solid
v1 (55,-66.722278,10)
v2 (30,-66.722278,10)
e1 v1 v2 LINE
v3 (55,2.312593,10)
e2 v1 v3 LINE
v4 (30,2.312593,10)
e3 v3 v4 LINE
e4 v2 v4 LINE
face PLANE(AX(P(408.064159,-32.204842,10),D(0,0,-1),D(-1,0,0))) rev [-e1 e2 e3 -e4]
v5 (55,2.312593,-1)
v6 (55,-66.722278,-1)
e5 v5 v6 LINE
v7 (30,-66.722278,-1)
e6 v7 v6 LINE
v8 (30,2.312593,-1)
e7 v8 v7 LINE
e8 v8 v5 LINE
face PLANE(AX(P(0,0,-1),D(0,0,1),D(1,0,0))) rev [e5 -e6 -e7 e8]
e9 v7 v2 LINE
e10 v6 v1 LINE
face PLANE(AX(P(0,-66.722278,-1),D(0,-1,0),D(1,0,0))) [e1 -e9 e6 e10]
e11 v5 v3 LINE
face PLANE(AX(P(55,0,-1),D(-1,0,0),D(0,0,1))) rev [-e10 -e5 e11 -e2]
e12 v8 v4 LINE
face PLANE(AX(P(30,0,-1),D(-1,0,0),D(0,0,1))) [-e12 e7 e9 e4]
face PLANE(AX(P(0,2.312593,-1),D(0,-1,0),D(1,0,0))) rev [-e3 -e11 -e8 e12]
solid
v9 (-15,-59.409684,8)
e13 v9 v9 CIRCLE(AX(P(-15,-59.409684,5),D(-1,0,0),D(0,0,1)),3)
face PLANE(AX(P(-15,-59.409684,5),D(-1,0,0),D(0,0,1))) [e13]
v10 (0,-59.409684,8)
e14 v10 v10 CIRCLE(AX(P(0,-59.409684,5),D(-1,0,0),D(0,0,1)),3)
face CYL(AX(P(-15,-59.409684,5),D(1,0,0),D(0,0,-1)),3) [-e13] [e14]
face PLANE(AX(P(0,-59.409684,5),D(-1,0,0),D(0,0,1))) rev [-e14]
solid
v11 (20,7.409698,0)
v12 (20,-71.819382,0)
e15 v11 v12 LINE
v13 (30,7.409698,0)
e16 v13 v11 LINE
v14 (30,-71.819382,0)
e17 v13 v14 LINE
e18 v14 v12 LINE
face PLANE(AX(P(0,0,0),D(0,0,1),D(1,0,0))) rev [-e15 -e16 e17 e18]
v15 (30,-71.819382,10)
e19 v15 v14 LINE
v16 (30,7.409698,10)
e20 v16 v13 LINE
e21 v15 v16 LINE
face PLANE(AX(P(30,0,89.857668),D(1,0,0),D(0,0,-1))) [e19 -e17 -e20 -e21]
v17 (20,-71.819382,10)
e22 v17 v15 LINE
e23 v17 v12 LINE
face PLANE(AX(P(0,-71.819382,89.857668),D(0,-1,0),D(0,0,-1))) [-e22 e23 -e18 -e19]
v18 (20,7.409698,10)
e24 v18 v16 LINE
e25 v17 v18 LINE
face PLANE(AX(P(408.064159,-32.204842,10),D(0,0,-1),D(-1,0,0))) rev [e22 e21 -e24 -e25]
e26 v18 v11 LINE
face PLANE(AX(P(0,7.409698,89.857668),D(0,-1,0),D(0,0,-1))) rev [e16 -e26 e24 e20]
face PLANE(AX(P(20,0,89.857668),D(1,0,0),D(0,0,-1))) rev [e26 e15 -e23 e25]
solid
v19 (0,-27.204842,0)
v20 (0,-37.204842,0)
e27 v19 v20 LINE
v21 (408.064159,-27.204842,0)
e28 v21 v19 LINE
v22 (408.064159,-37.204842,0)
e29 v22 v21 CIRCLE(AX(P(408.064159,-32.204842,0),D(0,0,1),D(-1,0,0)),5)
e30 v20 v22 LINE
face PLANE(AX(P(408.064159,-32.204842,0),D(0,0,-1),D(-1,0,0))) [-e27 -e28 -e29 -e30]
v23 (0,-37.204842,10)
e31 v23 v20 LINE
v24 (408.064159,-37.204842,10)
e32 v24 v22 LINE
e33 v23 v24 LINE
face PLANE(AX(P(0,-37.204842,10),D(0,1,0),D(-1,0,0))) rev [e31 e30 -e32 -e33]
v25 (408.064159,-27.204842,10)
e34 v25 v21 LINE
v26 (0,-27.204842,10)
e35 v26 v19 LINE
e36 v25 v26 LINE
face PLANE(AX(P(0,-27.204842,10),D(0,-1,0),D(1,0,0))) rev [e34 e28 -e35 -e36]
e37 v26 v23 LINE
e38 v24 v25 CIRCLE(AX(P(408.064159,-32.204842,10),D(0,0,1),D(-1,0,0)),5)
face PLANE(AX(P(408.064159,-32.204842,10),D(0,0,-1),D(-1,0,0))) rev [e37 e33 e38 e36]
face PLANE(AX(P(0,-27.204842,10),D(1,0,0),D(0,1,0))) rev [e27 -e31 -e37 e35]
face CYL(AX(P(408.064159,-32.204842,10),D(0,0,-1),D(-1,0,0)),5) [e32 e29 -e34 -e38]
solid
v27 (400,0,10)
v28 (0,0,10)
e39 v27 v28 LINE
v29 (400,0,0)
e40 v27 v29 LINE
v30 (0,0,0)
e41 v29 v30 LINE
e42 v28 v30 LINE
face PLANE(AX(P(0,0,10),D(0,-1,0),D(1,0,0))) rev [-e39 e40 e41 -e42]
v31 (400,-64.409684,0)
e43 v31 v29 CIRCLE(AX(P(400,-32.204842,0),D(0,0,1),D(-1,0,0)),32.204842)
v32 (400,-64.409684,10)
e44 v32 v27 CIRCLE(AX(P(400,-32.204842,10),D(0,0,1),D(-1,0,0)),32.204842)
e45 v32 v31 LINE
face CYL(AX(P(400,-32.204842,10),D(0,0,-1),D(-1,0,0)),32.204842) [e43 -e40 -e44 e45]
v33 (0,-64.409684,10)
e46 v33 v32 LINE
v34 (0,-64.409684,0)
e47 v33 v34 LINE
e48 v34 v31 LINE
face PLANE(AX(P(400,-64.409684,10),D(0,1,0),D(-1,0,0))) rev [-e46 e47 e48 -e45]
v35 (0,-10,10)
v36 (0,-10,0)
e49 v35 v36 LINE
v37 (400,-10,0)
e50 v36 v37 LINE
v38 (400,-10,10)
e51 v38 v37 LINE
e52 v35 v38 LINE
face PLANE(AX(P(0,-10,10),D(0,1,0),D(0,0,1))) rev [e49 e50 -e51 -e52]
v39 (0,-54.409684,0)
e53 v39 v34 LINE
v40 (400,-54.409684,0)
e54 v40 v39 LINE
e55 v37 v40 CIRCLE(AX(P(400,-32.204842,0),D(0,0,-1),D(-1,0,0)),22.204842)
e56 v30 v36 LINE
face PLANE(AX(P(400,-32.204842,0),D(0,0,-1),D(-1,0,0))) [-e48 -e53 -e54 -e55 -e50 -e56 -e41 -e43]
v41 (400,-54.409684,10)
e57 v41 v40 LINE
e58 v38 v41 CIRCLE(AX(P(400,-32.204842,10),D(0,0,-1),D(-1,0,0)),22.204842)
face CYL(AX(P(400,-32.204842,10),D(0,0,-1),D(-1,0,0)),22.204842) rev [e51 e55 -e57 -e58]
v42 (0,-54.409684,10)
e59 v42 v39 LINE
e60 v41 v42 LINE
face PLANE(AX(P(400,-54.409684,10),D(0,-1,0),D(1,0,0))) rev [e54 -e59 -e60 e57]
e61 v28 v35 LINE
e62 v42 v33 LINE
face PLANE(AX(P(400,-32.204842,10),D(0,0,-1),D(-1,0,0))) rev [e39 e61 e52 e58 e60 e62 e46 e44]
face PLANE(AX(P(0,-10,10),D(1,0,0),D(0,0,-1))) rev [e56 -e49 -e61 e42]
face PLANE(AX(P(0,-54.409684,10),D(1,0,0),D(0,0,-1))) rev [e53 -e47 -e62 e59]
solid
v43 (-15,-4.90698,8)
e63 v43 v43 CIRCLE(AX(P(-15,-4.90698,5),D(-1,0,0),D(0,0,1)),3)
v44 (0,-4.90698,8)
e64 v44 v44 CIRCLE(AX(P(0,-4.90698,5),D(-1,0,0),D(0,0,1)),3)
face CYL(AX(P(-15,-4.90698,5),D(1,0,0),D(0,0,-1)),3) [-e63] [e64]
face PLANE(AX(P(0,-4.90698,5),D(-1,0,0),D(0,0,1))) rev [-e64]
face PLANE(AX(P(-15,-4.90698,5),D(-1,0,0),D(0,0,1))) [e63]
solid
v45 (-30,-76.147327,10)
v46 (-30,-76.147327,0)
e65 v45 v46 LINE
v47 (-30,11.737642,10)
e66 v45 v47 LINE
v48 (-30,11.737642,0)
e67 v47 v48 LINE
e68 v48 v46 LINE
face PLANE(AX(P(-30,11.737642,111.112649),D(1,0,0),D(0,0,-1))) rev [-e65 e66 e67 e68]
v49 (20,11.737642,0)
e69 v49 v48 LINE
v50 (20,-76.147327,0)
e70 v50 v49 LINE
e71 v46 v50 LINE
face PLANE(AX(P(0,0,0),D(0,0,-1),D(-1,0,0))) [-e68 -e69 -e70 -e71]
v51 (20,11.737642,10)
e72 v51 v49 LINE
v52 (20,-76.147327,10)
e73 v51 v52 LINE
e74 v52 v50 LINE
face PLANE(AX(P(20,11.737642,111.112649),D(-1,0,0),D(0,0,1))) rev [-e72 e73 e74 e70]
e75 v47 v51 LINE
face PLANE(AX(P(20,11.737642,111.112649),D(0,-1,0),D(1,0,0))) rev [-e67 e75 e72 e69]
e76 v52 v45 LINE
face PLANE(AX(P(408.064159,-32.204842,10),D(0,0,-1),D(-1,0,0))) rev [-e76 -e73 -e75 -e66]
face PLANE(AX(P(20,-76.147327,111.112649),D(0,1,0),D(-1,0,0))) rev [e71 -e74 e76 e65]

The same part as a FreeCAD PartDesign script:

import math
import FreeCAD as App
import Part
import Sketcher

V = App.Vector
Q = App.Units.Quantity


def add_polygon(sketch, points):
    """Adds a closed chain of lines whose ends are joined by coincident constraints."""
    first, n = sketch.GeometryCount, len(points)
    for a, b in zip(points, points[1:] + points[:1]):
        sketch.addGeometry(Part.LineSegment(App.Vector(*a, 0), App.Vector(*b, 0)), False)
    for i in range(n):
        sketch.addConstraint(Sketcher.Constraint("Coincident", first + i, 2, first + (i + 1) % n, 1))

doc = App.newDocument("Part")
body = doc.addObject("PartDesign::Body", "Body")

sketch1 = body.newObject("Sketcher::SketchObject", "Sketch")
sketch1.AttachmentSupport = (doc.getObject("XY_Plane"), [""])
sketch1.MapMode = "FlatFace"
sketch1.addGeometry(Part.LineSegment(V(400, 0, 0), V(0, 0, 0)), False)
sketch1.addGeometry(Part.LineSegment(V(0, 0, 0), V(0, -10, 0)), False)
sketch1.addGeometry(Part.LineSegment(V(0, -10, 0), V(400, -10, 0)), False)
sketch1.addGeometry(Part.ArcOfCircle(Part.Circle(V(400, -32, 0), V(0, 0, 1), 22), math.radians(-90), math.radians(90)), False)
sketch1.addGeometry(Part.LineSegment(V(400, -54, 0), V(0, -54, 0)), False)
sketch1.addGeometry(Part.LineSegment(V(0, -54, 0), V(0, -64, 0)), False)
sketch1.addGeometry(Part.LineSegment(V(0, -64, 0), V(400, -64, 0)), False)
sketch1.addGeometry(Part.ArcOfCircle(Part.Circle(V(400, -32, 0), V(0, 0, 1), 32), math.radians(-90), math.radians(90)), False)
sketch1.addConstraint(Sketcher.Constraint("Coincident", 0, 2, 1, 1))
sketch1.addConstraint(Sketcher.Constraint("Coincident", 1, 2, 2, 1))
sketch1.addConstraint(Sketcher.Constraint("Tangent", 2, 2, 3, 2))
sketch1.addConstraint(Sketcher.Constraint("Tangent", 3, 1, 4, 1))
sketch1.addConstraint(Sketcher.Constraint("Coincident", 4, 2, 5, 1))
sketch1.addConstraint(Sketcher.Constraint("Coincident", 5, 2, 6, 1))
sketch1.addConstraint(Sketcher.Constraint("Tangent", 6, 2, 7, 1))
sketch1.addConstraint(Sketcher.Constraint("Tangent", 7, 2, 0, 1))
sketch1.addConstraint(Sketcher.Constraint("Horizontal", 0))
sketch1.addConstraint(Sketcher.Constraint("Vertical", 1))
sketch1.addConstraint(Sketcher.Constraint("Horizontal", 2))
sketch1.addConstraint(Sketcher.Constraint("Horizontal", 4))
sketch1.addConstraint(Sketcher.Constraint("Vertical", 5))
sketch1.addConstraint(Sketcher.Constraint("Horizontal", 6))
sketch1.addConstraint(Sketcher.Constraint("Coincident", 0, 2, -1, 1))
sketch1.addConstraint(Sketcher.Constraint("Coincident", 7, 3, 3, 3))
sketch1.addConstraint(Sketcher.Constraint("PointOnObject", 4, 2, -2))
sketch1.addConstraint(Sketcher.Constraint("DistanceX", 0, 2, 0, 1, Q("400 mm")))
sketch1.addConstraint(Sketcher.Constraint("DistanceY", 1, 2, 1, 1, Q("10 mm")))
sketch1.addConstraint(Sketcher.Constraint("Radius", 3, Q("22.204842 mm")))
pad1 = body.newObject("PartDesign::Pad", "Pad")
pad1.Profile = sketch1
pad1.Length = 10
body2 = doc.addObject("PartDesign::Body", "Body001")

sketch2 = body2.newObject("Sketcher::SketchObject", "Sketch001")
sketch2.AttachmentSupport = (doc.getObject("XY_Plane001"), [""])
sketch2.MapMode = "FlatFace"
sketch2.addGeometry(Part.LineSegment(V(408, -27, 0), V(0, -27, 0)), False)
sketch2.addGeometry(Part.LineSegment(V(0, -27, 0), V(0, -37, 0)), False)
sketch2.addGeometry(Part.LineSegment(V(0, -37, 0), V(408, -37, 0)), False)
sketch2.addGeometry(Part.ArcOfCircle(Part.Circle(V(408, -32, 0), V(0, 0, 1), 5), math.radians(-90), math.radians(90)), False)
sketch2.addConstraint(Sketcher.Constraint("Coincident", 0, 2, 1, 1))
sketch2.addConstraint(Sketcher.Constraint("Coincident", 1, 2, 2, 1))
sketch2.addConstraint(Sketcher.Constraint("Tangent", 2, 2, 3, 1))
sketch2.addConstraint(Sketcher.Constraint("Tangent", 3, 2, 0, 1))
sketch2.addConstraint(Sketcher.Constraint("Horizontal", 0))
sketch2.addConstraint(Sketcher.Constraint("Vertical", 1))
sketch2.addConstraint(Sketcher.Constraint("Horizontal", 2))
sketch2.addConstraint(Sketcher.Constraint("PointOnObject", 0, 2, -2))
sketch2.addConstraint(Sketcher.Constraint("Radius", 3, Q("5 mm")))
sketch2.addConstraint(Sketcher.Constraint("DistanceX", 0, 2, 0, 1, Q("408.064159 mm")))
sketch2.addConstraint(Sketcher.Constraint("DistanceY", 3, 3, -1, 1, Q("32.204842 mm")))
pad2 = body2.newObject("PartDesign::Pad", "Pad001")
pad2.Profile = sketch2
pad2.Length = 10
body3 = doc.addObject("PartDesign::Body", "Body002")

sketch3 = body3.newObject("Sketcher::SketchObject", "Sketch002")
sketch3.AttachmentSupport = (doc.getObject("YZ_Plane002"), [""])
sketch3.MapMode = "FlatFace"
sketch3.addGeometry(Part.Circle(V(-4.9, 5, 0), V(0, 0, 1), 3), False)
sketch3.addConstraint(Sketcher.Constraint("Diameter", 0, Q("6 mm")))
sketch3.addConstraint(Sketcher.Constraint("DistanceY", -1, 1, 0, 3, Q("5 mm")))
sketch3.addConstraint(Sketcher.Constraint("DistanceX", 0, 3, -1, 1, Q("4.90698 mm")))
pad3 = body3.newObject("PartDesign::Pad", "Pad002")
pad3.Profile = sketch3
pad3.Length = 15
pad3.Reversed = True
body4 = doc.addObject("PartDesign::Body", "Body003")

sketch4 = body4.newObject("Sketcher::SketchObject", "Sketch003")
sketch4.AttachmentSupport = (doc.getObject("YZ_Plane003"), [""])
sketch4.MapMode = "FlatFace"
sketch4.addGeometry(Part.Circle(V(-59.4, 5, 0), V(0, 0, 1), 3), False)
sketch4.addConstraint(Sketcher.Constraint("Diameter", 0, Q("6 mm")))
sketch4.addConstraint(Sketcher.Constraint("DistanceY", -1, 1, 0, 3, Q("5 mm")))
sketch4.addConstraint(Sketcher.Constraint("DistanceX", 0, 3, -1, 1, Q("59.409684 mm")))
pad4 = body4.newObject("PartDesign::Pad", "Pad003")
pad4.Profile = sketch4
pad4.Length = 15
pad4.Reversed = True
body5 = doc.addObject("PartDesign::Body", "Body004")

sketch5 = body5.newObject("Sketcher::SketchObject", "Sketch004")
sketch5.AttachmentSupport = (doc.getObject("XY_Plane004"), [""])
sketch5.MapMode = "FlatFace"
add_polygon(sketch5, [(30, 2), (30, -67), (55, -67), (55, 2)])
sketch5.addConstraint(Sketcher.Constraint("Vertical", 0))
sketch5.addConstraint(Sketcher.Constraint("Horizontal", 1))
sketch5.addConstraint(Sketcher.Constraint("Vertical", 2))
sketch5.addConstraint(Sketcher.Constraint("Horizontal", 3))
sketch5.addConstraint(Sketcher.Constraint("DistanceX", 1, 1, 1, 2, Q("25 mm")))
sketch5.addConstraint(Sketcher.Constraint("DistanceX", -1, 1, 0, 2, Q("30 mm")))
sketch5.addConstraint(Sketcher.Constraint("DistanceY", 0, 2, 0, 1, Q("69.034871 mm")))
sketch5.addConstraint(Sketcher.Constraint("DistanceY", 0, 2, -1, 1, Q("66.722278 mm")))
pad5 = body5.newObject("PartDesign::Pad", "Pad004")
pad5.Profile = sketch5
pad5.Type = "TwoLengths"
pad5.Length = 10
pad5.Length2 = 1
body6 = doc.addObject("PartDesign::Body", "Body005")

sketch6 = body6.newObject("Sketcher::SketchObject", "Sketch005")
sketch6.AttachmentSupport = (doc.getObject("XY_Plane005"), [""])
sketch6.MapMode = "FlatFace"
add_polygon(sketch6, [(20, 7), (20, -72), (30, -72), (30, 7)])
sketch6.addConstraint(Sketcher.Constraint("Vertical", 0))
sketch6.addConstraint(Sketcher.Constraint("Horizontal", 1))
sketch6.addConstraint(Sketcher.Constraint("Vertical", 2))
sketch6.addConstraint(Sketcher.Constraint("Horizontal", 3))
sketch6.addConstraint(Sketcher.Constraint("DistanceX", 1, 1, 1, 2, Q("10 mm")))
sketch6.addConstraint(Sketcher.Constraint("DistanceX", -1, 1, 0, 2, Q("20 mm")))
sketch6.addConstraint(Sketcher.Constraint("DistanceY", 0, 2, 0, 1, Q("79.22908 mm")))
sketch6.addConstraint(Sketcher.Constraint("DistanceY", 0, 2, -1, 1, Q("71.819382 mm")))
pad6 = body6.newObject("PartDesign::Pad", "Pad005")
pad6.Profile = sketch6
pad6.Length = 10
body7 = doc.addObject("PartDesign::Body", "Body006")

sketch7 = body7.newObject("Sketcher::SketchObject", "Sketch006")
sketch7.AttachmentSupport = (doc.getObject("XY_Plane006"), [""])
sketch7.MapMode = "FlatFace"
add_polygon(sketch7, [(-30, 12), (-30, -76), (20, -76), (20, 12)])
sketch7.addConstraint(Sketcher.Constraint("Vertical", 0))
sketch7.addConstraint(Sketcher.Constraint("Horizontal", 1))
sketch7.addConstraint(Sketcher.Constraint("Vertical", 2))
sketch7.addConstraint(Sketcher.Constraint("Horizontal", 3))
sketch7.addConstraint(Sketcher.Constraint("DistanceX", 1, 1, 1, 2, Q("50 mm")))
sketch7.addConstraint(Sketcher.Constraint("DistanceX", 0, 2, -1, 1, Q("30 mm")))
sketch7.addConstraint(Sketcher.Constraint("DistanceY", 0, 2, 0, 1, Q("87.884969 mm")))
sketch7.addConstraint(Sketcher.Constraint("DistanceY", 0, 2, -1, 1, Q("76.147327 mm")))
pad7 = body7.newObject("PartDesign::Pad", "Pad006")
pad7.Profile = sketch7
pad7.Length = 10

doc.recompute()
